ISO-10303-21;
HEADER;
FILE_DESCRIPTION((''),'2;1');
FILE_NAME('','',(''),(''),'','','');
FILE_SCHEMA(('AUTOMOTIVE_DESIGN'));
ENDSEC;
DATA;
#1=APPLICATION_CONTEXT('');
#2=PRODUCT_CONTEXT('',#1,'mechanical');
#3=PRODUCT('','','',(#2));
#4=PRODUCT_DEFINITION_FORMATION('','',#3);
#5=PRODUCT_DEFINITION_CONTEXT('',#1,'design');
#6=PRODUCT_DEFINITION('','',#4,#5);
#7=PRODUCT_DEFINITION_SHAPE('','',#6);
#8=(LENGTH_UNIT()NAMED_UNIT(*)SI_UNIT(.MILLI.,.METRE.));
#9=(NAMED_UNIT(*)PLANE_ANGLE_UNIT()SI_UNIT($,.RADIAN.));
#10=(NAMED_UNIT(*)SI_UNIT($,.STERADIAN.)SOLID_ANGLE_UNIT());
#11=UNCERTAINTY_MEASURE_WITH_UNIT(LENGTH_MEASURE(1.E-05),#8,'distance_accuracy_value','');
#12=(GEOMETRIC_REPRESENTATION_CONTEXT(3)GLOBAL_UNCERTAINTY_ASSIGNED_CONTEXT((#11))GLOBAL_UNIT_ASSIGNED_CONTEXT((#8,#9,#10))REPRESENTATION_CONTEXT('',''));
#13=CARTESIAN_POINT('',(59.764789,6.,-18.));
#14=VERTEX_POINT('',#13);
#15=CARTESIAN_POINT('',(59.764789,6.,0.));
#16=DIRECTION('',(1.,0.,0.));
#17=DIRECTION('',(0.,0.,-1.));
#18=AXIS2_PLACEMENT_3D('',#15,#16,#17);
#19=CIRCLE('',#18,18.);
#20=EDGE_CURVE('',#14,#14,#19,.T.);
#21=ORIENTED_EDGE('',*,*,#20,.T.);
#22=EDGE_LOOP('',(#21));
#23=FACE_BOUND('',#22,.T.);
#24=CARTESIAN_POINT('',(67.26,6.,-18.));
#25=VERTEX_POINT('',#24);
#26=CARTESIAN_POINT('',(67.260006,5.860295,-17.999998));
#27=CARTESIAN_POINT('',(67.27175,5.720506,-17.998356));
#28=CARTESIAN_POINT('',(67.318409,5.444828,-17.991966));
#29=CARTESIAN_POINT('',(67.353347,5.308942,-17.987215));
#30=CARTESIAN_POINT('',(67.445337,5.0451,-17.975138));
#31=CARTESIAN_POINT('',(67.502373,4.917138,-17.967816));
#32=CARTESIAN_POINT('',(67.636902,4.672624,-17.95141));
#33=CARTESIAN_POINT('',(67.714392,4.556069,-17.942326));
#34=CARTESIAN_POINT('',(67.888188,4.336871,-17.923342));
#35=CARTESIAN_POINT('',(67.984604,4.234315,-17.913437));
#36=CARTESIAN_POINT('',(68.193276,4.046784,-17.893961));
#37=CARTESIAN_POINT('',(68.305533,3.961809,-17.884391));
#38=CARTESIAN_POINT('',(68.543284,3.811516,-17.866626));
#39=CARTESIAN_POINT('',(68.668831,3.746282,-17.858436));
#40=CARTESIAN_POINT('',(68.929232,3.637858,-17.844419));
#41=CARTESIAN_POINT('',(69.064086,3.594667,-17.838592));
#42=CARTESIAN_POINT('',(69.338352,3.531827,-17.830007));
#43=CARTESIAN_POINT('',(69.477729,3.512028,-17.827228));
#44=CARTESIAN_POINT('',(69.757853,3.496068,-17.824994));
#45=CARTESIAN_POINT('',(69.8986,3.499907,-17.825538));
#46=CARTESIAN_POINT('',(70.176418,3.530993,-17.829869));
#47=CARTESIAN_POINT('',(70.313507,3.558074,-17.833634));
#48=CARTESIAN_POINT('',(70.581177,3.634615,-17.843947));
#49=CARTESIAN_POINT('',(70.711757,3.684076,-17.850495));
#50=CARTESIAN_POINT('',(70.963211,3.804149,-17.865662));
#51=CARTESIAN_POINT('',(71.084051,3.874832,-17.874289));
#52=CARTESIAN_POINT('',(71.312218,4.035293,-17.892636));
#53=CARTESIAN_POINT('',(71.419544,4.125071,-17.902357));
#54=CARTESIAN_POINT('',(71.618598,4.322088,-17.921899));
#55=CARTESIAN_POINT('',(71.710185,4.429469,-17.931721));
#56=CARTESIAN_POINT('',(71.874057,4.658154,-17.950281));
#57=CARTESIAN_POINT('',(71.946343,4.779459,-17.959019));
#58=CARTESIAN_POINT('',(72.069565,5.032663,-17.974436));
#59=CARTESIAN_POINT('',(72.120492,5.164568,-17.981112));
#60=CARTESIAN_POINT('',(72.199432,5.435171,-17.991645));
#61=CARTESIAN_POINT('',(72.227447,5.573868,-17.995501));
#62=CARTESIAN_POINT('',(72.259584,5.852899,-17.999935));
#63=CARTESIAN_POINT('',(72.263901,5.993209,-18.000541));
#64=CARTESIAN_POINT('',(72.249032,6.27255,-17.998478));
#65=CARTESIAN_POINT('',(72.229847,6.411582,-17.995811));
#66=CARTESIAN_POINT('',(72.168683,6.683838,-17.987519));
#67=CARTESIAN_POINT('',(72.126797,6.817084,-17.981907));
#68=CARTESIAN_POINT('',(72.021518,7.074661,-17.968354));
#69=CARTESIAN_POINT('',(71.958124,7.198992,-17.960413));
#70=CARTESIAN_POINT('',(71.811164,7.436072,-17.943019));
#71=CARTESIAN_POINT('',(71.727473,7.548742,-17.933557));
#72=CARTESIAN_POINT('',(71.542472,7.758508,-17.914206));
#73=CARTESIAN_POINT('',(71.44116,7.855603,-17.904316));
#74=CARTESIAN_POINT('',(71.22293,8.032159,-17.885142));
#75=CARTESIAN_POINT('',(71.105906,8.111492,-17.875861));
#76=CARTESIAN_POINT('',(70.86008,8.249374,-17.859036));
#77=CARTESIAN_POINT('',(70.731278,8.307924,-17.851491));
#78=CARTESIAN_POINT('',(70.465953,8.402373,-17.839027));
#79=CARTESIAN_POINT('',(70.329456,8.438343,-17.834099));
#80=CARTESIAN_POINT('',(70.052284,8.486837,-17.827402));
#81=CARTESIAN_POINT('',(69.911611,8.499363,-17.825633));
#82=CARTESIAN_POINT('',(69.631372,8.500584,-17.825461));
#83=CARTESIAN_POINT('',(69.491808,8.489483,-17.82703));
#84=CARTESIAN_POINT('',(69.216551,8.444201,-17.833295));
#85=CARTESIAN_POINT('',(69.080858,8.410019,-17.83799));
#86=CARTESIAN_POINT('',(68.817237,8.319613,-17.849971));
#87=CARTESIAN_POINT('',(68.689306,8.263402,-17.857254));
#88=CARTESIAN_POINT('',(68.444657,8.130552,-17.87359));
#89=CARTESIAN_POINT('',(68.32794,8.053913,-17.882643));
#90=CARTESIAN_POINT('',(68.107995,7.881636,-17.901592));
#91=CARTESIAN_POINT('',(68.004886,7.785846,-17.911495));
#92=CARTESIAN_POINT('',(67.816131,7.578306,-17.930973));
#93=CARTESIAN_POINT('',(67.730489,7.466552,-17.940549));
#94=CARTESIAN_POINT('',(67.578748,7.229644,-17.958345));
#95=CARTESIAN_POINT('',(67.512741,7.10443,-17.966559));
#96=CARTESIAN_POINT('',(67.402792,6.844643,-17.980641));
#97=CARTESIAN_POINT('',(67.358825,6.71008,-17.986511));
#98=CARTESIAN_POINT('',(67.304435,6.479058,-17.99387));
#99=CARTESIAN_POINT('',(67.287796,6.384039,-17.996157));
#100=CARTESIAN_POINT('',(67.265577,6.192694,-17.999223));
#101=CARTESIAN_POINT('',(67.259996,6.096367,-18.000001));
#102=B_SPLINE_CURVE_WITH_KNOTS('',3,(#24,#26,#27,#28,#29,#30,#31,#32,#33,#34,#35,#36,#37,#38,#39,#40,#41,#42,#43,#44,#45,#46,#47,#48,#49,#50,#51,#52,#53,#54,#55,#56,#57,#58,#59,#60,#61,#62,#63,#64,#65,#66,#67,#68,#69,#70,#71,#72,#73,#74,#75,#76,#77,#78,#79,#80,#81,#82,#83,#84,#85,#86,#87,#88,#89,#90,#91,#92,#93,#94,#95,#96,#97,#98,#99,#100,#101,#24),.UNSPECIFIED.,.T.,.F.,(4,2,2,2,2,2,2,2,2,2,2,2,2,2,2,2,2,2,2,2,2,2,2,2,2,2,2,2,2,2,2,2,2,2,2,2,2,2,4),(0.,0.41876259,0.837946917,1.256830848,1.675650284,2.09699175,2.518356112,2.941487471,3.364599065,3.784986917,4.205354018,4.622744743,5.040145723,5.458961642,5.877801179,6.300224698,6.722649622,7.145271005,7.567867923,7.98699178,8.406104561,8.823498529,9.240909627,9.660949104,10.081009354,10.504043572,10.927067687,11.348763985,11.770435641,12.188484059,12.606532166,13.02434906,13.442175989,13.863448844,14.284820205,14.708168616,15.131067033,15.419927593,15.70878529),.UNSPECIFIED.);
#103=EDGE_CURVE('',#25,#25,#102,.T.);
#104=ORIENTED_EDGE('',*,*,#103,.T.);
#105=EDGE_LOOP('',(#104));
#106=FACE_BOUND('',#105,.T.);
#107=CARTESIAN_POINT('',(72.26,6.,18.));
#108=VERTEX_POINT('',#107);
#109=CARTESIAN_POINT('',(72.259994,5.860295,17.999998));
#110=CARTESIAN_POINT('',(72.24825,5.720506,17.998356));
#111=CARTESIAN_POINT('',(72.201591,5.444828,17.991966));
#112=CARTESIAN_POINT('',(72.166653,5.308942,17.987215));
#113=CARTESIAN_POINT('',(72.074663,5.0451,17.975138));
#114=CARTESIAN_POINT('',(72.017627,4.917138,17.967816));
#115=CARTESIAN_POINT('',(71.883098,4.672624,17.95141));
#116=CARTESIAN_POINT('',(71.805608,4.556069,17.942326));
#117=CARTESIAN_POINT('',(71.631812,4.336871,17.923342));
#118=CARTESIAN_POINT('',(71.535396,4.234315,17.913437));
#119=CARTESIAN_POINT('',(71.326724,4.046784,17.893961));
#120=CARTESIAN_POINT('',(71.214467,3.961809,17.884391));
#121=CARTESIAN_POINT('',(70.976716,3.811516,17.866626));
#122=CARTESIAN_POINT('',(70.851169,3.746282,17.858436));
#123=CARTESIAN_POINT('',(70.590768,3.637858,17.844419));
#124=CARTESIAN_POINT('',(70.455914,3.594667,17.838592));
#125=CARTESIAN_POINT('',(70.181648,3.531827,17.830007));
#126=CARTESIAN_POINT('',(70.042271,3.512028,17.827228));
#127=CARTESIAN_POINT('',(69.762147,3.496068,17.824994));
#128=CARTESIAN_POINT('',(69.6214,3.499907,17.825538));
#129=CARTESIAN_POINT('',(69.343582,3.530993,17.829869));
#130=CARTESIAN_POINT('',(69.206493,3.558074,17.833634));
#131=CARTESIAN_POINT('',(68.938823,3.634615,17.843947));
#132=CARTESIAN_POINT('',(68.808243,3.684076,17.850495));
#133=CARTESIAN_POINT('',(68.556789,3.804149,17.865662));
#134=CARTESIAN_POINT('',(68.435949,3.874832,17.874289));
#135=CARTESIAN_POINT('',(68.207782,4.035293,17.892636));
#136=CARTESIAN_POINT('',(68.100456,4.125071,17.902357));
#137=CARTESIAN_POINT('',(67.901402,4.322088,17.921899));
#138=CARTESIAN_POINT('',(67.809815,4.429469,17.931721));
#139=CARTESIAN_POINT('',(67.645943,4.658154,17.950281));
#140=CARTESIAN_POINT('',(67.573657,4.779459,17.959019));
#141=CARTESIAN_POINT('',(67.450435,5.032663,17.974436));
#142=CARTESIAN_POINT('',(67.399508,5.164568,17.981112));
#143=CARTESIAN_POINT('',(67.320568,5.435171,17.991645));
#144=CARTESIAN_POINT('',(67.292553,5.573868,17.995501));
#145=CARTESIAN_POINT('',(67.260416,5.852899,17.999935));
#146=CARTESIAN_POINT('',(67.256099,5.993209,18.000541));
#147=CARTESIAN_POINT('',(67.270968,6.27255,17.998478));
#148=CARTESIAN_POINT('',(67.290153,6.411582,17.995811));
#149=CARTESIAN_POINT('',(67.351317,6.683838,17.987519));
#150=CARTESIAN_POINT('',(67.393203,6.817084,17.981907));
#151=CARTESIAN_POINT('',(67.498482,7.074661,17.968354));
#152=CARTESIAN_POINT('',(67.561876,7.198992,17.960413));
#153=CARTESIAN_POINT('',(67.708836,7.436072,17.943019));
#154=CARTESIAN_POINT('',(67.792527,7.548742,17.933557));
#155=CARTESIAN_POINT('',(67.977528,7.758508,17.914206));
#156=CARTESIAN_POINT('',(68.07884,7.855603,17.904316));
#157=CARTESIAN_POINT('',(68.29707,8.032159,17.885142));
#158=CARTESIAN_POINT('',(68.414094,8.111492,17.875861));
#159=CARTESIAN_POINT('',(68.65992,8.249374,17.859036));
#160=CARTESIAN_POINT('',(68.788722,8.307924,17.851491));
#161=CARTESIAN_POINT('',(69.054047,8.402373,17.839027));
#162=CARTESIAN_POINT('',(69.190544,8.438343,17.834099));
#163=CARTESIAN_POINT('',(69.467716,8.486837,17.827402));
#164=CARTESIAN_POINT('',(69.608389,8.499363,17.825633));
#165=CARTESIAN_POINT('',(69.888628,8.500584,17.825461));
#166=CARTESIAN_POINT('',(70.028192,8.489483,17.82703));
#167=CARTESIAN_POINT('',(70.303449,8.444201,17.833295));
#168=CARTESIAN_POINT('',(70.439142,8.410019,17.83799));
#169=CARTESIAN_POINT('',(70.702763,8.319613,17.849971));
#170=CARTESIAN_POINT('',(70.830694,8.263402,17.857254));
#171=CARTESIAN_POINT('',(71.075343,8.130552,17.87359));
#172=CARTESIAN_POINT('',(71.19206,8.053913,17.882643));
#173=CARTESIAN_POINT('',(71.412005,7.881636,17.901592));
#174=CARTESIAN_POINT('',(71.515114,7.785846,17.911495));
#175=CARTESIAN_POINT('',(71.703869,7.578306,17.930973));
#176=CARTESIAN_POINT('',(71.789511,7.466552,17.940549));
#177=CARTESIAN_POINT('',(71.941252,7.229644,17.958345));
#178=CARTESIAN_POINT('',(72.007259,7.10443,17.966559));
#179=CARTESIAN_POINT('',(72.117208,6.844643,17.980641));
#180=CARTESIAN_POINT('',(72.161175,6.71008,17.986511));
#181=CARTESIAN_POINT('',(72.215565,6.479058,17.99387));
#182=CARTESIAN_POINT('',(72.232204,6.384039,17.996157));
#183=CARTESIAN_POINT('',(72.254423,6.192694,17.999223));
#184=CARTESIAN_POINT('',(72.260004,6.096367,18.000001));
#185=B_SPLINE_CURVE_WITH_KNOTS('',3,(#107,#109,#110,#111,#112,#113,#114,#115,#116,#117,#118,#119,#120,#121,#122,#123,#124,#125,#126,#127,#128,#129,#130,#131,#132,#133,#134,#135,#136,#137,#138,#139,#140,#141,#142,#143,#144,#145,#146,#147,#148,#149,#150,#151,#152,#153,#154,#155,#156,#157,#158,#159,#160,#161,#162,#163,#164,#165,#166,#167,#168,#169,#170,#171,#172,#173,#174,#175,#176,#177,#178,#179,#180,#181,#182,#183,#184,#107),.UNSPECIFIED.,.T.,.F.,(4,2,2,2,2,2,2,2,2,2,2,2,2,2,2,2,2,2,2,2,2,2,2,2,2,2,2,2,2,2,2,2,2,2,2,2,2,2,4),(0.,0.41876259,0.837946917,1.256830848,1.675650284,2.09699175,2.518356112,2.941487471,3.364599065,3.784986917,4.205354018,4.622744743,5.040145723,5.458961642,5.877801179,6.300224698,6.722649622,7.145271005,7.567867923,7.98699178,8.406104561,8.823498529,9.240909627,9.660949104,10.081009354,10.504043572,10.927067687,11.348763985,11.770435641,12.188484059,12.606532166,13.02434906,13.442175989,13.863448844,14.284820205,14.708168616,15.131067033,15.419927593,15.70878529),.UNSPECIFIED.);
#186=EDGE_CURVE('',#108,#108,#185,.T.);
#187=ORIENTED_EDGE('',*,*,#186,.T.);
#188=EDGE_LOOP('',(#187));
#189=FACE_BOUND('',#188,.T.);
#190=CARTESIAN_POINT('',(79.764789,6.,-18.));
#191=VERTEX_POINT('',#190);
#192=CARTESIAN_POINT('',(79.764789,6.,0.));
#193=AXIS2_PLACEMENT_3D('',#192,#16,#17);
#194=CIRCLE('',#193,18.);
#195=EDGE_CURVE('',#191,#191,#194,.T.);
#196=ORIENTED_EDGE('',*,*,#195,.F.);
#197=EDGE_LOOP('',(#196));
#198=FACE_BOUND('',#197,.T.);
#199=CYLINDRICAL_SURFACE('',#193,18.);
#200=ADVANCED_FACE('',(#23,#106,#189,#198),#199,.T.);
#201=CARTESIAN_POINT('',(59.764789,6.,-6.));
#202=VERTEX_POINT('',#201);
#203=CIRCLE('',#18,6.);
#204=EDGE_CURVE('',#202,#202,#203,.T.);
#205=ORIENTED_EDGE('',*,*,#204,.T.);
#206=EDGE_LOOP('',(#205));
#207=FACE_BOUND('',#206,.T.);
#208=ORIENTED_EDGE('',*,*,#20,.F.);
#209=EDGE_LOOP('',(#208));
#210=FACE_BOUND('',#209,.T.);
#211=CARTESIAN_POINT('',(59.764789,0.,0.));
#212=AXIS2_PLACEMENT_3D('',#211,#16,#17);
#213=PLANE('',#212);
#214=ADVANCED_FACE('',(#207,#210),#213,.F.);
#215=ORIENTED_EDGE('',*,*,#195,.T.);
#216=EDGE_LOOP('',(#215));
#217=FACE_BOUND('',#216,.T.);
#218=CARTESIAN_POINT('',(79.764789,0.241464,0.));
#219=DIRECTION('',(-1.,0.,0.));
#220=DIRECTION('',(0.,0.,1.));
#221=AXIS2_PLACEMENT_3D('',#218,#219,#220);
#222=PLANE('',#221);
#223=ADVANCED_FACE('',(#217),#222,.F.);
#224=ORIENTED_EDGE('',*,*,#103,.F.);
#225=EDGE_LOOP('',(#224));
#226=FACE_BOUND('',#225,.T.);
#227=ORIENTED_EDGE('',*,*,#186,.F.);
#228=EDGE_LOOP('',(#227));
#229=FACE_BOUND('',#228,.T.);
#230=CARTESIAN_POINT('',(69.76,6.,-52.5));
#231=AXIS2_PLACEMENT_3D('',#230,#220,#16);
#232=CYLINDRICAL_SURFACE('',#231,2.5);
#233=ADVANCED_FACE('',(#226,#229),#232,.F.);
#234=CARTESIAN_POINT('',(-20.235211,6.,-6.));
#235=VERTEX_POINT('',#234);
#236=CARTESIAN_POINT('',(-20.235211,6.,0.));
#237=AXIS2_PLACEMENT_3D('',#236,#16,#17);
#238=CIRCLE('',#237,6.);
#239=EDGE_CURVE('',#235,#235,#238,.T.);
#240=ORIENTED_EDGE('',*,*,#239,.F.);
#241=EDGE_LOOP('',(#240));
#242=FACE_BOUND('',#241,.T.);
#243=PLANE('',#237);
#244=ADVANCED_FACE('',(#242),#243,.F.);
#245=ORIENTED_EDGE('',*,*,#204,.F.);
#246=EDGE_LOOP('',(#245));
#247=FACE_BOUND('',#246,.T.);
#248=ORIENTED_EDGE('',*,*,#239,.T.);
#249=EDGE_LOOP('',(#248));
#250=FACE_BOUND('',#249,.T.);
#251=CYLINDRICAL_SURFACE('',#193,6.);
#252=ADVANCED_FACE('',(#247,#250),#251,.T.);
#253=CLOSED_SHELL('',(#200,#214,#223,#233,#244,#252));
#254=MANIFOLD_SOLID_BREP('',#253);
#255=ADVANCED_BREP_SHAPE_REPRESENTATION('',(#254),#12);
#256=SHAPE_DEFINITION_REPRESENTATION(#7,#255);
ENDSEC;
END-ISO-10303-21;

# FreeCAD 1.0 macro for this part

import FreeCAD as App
import Part
import Sketcher

V = App.Vector
Q = App.Units.Quantity


def add_polygon(sketch, points):
    """Adds a closed chain of lines whose ends are joined by coincident constraints."""
    first, n = sketch.GeometryCount, len(points)
    for a, b in zip(points, points[1:] + points[:1]):
        sketch.addGeometry(Part.LineSegment(App.Vector(*a, 0), App.Vector(*b, 0)), False)
    for i in range(n):
        sketch.addConstraint(Sketcher.Constraint("Coincident", first + i, 2, first + (i + 1) % n, 1))

doc = App.newDocument("Part")
body = doc.addObject("PartDesign::Body", "Body")

# Sketch on XY plane
sketch1 = body.newObject("Sketcher::SketchObject", "Sketch")
sketch1.AttachmentSupport = (doc.getObject("XY_Plane"), [""])
sketch1.MapMode = "FlatFace"
add_polygon(sketch1, [(-20, 0), (60, 0), (60, -12), (80, -12), (80, 6), (-20, 6)])  # lines 0-5
sketch1.addGeometry(Part.LineSegment(V(80, 6, 0), V(-20, 6, 0)), True)  # axis
sketch1.addConstraint([
    Sketcher.Constraint("Horizontal", 0),
    Sketcher.Constraint("Vertical", 1),
    Sketcher.Constraint("Horizontal", 2),
    Sketcher.Constraint("Vertical", 3),
    Sketcher.Constraint("Horizontal", 4),
    Sketcher.Constraint("Vertical", 5),
    Sketcher.Constraint("Horizontal", 6),
    Sketcher.Constraint("Coincident", 6, 1, 3, 2),
    Sketcher.Constraint("PointOnObject", 0, 2, -1),
    Sketcher.Constraint("Vertical", 5, 2, 6, 2),
    Sketcher.Constraint("DistanceX", 0, 1, 0, 2, Q("80 mm")),
    Sketcher.Constraint("DistanceX", 2, 1, 2, 2, Q("20 mm")),
    Sketcher.Constraint("DistanceY", 1, 2, 1, 1, Q("12 mm")),
    Sketcher.Constraint("DistanceY", 3, 1, 3, 2, Q("18 mm")),
    Sketcher.Constraint("DistanceX", -1, 1, 0, 2, Q("59.764789 mm")),
])
revolution = body.newObject("PartDesign::Revolution", "Revolution")
revolution.Profile = sketch1
revolution.ReferenceAxis = (sketch1, ["Axis0"])
revolution.Angle = 360

# Sketch on XY plane
sketch2 = body.newObject("Sketcher::SketchObject", "Sketch001")
sketch2.AttachmentSupport = (doc.getObject("XY_Plane"), [""])
sketch2.MapMode = "FlatFace"
sketch2.addGeometry(Part.Circle(V(69.8, 6, 0), V(0, 0, 1), 2.5), False)
sketch2.addConstraint([
    Sketcher.Constraint("Diameter", 0, Q("5 mm")),
    Sketcher.Constraint("DistanceY", -1, 1, 0, 3, Q("6 mm")),
    Sketcher.Constraint("DistanceX", -1, 1, 0, 3, Q("69.76 mm")),
])
pocket1 = body.newObject("PartDesign::Pocket", "Pocket")
pocket1.Profile = sketch2
pocket1.Length = 105
pocket1.Midplane = True

doc.recompute()
